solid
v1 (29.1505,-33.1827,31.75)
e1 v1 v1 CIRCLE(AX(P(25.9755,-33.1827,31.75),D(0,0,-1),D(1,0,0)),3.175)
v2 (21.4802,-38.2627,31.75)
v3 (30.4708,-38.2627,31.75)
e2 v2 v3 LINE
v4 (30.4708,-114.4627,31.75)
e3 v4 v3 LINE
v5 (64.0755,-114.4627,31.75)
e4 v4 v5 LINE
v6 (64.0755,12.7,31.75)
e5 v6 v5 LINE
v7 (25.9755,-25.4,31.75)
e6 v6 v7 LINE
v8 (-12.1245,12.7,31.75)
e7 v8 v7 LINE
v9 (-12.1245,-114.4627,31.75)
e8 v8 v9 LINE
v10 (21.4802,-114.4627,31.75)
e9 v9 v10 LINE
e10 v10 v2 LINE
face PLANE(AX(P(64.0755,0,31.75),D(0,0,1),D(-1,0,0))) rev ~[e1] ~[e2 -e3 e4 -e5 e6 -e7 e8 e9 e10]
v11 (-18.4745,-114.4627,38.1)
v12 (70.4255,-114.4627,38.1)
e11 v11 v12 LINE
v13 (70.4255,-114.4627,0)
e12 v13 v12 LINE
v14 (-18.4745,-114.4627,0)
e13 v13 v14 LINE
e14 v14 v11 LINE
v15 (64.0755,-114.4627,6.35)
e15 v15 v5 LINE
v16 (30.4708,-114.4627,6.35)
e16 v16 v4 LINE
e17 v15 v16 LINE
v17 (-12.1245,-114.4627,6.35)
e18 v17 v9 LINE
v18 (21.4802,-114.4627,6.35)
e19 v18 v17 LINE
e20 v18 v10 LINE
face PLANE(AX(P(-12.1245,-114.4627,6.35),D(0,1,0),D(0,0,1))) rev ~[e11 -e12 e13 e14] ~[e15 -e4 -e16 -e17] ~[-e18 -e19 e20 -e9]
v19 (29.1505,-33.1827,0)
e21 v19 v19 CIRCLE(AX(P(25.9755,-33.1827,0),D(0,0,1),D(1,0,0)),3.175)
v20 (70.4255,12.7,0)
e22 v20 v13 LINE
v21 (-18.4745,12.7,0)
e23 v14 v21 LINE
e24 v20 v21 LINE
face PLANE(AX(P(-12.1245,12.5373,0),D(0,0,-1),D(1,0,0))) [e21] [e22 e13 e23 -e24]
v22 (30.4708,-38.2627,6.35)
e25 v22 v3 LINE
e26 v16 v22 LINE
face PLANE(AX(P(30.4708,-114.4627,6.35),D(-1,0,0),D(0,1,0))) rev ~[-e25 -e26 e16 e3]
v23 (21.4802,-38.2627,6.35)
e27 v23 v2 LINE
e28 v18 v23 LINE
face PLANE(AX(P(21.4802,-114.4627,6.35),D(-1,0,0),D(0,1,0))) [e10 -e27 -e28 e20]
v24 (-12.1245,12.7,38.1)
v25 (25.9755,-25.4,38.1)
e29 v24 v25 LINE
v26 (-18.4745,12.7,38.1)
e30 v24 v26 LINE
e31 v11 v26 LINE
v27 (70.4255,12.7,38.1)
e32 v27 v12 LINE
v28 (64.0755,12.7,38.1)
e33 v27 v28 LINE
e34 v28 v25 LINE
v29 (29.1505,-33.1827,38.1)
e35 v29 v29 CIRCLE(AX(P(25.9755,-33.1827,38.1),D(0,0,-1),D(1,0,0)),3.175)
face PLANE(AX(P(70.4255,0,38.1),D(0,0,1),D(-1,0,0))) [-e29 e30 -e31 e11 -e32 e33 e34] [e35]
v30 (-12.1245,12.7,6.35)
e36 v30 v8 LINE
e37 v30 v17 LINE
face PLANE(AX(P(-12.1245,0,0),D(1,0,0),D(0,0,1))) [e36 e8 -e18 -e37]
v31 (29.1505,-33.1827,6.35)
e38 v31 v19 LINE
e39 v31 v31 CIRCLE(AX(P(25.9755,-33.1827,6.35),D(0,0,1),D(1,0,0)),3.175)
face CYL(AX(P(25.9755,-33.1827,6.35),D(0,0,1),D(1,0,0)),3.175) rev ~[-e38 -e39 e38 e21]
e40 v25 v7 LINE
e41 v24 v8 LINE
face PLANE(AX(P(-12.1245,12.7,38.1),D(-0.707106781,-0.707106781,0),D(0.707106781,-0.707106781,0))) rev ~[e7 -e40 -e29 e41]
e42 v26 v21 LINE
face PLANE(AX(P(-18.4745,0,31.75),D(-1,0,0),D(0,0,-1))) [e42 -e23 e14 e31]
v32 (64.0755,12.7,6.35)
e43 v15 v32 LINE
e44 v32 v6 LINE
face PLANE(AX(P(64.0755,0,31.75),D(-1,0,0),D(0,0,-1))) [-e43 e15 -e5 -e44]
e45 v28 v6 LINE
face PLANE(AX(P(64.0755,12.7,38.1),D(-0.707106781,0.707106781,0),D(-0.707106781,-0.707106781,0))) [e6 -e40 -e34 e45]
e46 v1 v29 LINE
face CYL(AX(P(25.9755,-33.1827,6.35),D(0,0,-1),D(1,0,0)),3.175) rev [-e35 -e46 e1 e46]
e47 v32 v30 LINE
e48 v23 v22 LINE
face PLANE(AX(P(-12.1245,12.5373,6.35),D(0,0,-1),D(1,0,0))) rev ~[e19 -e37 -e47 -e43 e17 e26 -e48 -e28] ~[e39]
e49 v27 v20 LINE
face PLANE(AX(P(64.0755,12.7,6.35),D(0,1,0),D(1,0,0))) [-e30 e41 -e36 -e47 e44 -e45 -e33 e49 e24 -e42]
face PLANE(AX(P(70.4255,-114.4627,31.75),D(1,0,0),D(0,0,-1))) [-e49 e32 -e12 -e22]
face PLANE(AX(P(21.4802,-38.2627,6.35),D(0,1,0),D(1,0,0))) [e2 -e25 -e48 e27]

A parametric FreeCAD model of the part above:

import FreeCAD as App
import Part
import Sketcher
Q = App.Units.Quantity

doc = App.newDocument("Part")
body = doc.addObject("PartDesign::Body", "Body")

# Sketch on XY plane
sketch1 = body.newObject("Sketcher::SketchObject", "Sketch")
sketch1.AttachmentSupport = (doc.getObject("XY_Plane"), [""])
sketch1.MapMode = "FlatFace"
sketch1.addGeometry([
    Part.LineSegment(App.Vector(64.0755, 12.5373, 0), App.Vector(-12.1245, 12.5373, 0)),
    Part.LineSegment(App.Vector(-12.1245, 12.5373, 0), App.Vector(-12.1245, -114.4627, 0)),
    Part.LineSegment(App.Vector(-12.1245, -114.4627, 0), App.Vector(64.0755, -114.4627, 0)),
    Part.LineSegment(App.Vector(64.0755, -114.4627, 0), App.Vector(64.0755, 12.5373, 0)),
], False)
sketch1.addConstraint([
    Sketcher.Constraint("Coincident", 0, 2, 1, 1),
    Sketcher.Constraint("Coincident", 1, 2, 2, 1),
    Sketcher.Constraint("Coincident", 2, 2, 3, 1),
    Sketcher.Constraint("Coincident", 3, 2, 0, 1),
    Sketcher.Constraint("Horizontal", 0),
    Sketcher.Constraint("Vertical", 1),
    Sketcher.Constraint("Horizontal", 2),
    Sketcher.Constraint("Vertical", 3),
    Sketcher.Constraint("DistanceX", 0, 2, 0, 1, Q("3 in")),
    Sketcher.Constraint("DistanceY", 1, 2, 1, 1, Q("5 in")),
    Sketcher.Constraint("DistanceY", -1, 1, 0, 2, Q("0.4936 in")),
    Sketcher.Constraint("DistanceX", 0, 2, -1, 1, Q("12.1245 mm")),
])
pad1 = body.newObject("PartDesign::Pad", "Pad")
pad1.Profile = sketch1
pad1.Length = Q("0.25 in")

# Sketch on XY plane
sketch2 = body.newObject("Sketcher::SketchObject", "Sketch001")
sketch2.AttachmentSupport = (doc.getObject("XY_Plane"), [""])
sketch2.MapMode = "FlatFace"
sketch2.AttachmentOffset = App.Placement(App.Vector(0, 0, 0.25 * 25.4), App.Rotation())
sketch2.addGeometry([
    Part.LineSegment(App.Vector(21.4802, -38.2627, 0), App.Vector(21.4802, -114.4627, 0)),
    Part.LineSegment(App.Vector(21.4802, -114.4627, 0), App.Vector(30.4708, -114.4627, 0)),
    Part.LineSegment(App.Vector(30.4708, -114.4627, 0), App.Vector(30.4708, -38.2627, 0)),
    Part.LineSegment(App.Vector(30.4708, -38.2627, 0), App.Vector(21.4802, -38.2627, 0)),
], False)
sketch2.addConstraint([
    Sketcher.Constraint("Coincident", 0, 2, 1, 1),
    Sketcher.Constraint("Coincident", 1, 2, 2, 1),
    Sketcher.Constraint("Coincident", 2, 2, 3, 1),
    Sketcher.Constraint("Coincident", 3, 2, 0, 1),
    Sketcher.Constraint("Vertical", 0),
    Sketcher.Constraint("Horizontal", 1),
    Sketcher.Constraint("Vertical", 2),
    Sketcher.Constraint("Horizontal", 3),
    Sketcher.Constraint("DistanceY", 0, 2, 0, 1, Q("3 in")),
    Sketcher.Constraint("DistanceX", 1, 1, 1, 2, Q("8.9906 mm")),
    Sketcher.Constraint("DistanceY", 0, 2, -1, 1, Q("4.5064 in")),
    Sketcher.Constraint("DistanceX", -1, 1, 0, 2, Q("21.4802 mm")),
])
pad2 = body.newObject("PartDesign::Pad", "Pad001")
pad2.Profile = sketch2
pad2.Length = Q("1 in")

# Sketch on XY plane
sketch3 = body.newObject("Sketcher::SketchObject", "Sketch002")
sketch3.AttachmentSupport = (doc.getObject("XY_Plane"), [""])
sketch3.MapMode = "FlatFace"
sketch3.AttachmentOffset = App.Placement(App.Vector(0, 0, 1.25 * 25.4), App.Rotation())
sketch3.addGeometry([
    Part.LineSegment(App.Vector(-12.1245, -114.4627, 0), App.Vector(64.0755, -114.4627, 0)),
    Part.LineSegment(App.Vector(64.0755, -114.4627, 0), App.Vector(64.0755, 0, 0)),
    Part.LineSegment(App.Vector(64.0755, 0, 0), App.Vector(-12.1245, 0, 0)),
    Part.LineSegment(App.Vector(-12.1245, 0, 0), App.Vector(-12.1245, -114.4627, 0)),
], False)
sketch3.addConstraint([
    Sketcher.Constraint("Coincident", 0, 2, 1, 1),
    Sketcher.Constraint("Coincident", 1, 2, 2, 1),
    Sketcher.Constraint("Coincident", 2, 2, 3, 1),
    Sketcher.Constraint("Coincident", 3, 2, 0, 1),
    Sketcher.Constraint("Horizontal", 0),
    Sketcher.Constraint("Vertical", 1),
    Sketcher.Constraint("Horizontal", 2),
    Sketcher.Constraint("Vertical", 3),
    Sketcher.Constraint("PointOnObject", 1, 2, -1),
    Sketcher.Constraint("DistanceX", 0, 1, 0, 2, Q("3 in")),
    Sketcher.Constraint("DistanceY", 1, 1, 1, 2, Q("4.5064 in")),
    Sketcher.Constraint("DistanceX", -1, 1, 0, 2, Q("64.0755 mm")),
])
pad3 = body.newObject("PartDesign::Pad", "Pad002")
pad3.Profile = sketch3
pad3.Length = Q("0.25 in")

# Sketch on XY plane
sketch4 = body.newObject("Sketcher::SketchObject", "Sketch003")
sketch4.AttachmentSupport = (doc.getObject("XY_Plane"), [""])
sketch4.MapMode = "FlatFace"
sketch4.AttachmentOffset = App.Placement(App.Vector(0, 0, 0.25 * 25.4), App.Rotation())
sketch4.addGeometry(Part.Circle(App.Vector(25.9755, -33.1827, 0), App.Vector(0, 0, 1), 3.175), False)
sketch4.addConstraint([
    Sketcher.Constraint("Diameter", 0, Q("0.25 in")),
    Sketcher.Constraint("DistanceY", 0, 3, -1, 1, Q("1.3064 in")),
    Sketcher.Constraint("DistanceX", -1, 1, 0, 3, Q("25.9755 mm")),
])
pocket1 = body.newObject("PartDesign::Pocket", "Pocket")
pocket1.Profile = sketch4
pocket1.Length = Q("3 in")
pocket1.Midplane = True

# Sketch on YZ plane
sketch5 = body.newObject("Sketcher::SketchObject", "Sketch004")
sketch5.AttachmentSupport = (doc.getObject("YZ_Plane"), [""])
sketch5.MapMode = "FlatFace"
sketch5.AttachmentOffset = App.Placement(App.Vector(0, 0, 64.0755), App.Rotation())
sketch5.addGeometry([
    Part.LineSegment(App.Vector(-114.4627, 0, 0), App.Vector(0, 0, 0)),
    Part.LineSegment(App.Vector(0, 0, 0), App.Vector(0, 38.1, 0)),
    Part.LineSegment(App.Vector(0, 38.1, 0), App.Vector(-114.4627, 38.1, 0)),
    Part.LineSegment(App.Vector(-114.4627, 38.1, 0), App.Vector(-114.4627, 0, 0)),
], False)
sketch5.addConstraint([
    Sketcher.Constraint("Coincident", 0, 2, 1, 1),
    Sketcher.Constraint("Coincident", 1, 2, 2, 1),
    Sketcher.Constraint("Coincident", 2, 2, 3, 1),
    Sketcher.Constraint("Coincident", 3, 2, 0, 1),
    Sketcher.Constraint("Horizontal", 0),
    Sketcher.Constraint("Vertical", 1),
    Sketcher.Constraint("Horizontal", 2),
    Sketcher.Constraint("Vertical", 3),
    Sketcher.Constraint("Coincident", 0, 2, -1, 1),
    Sketcher.Constraint("DistanceY", 1, 1, 1, 2, Q("1.5 in")),
    Sketcher.Constraint("DistanceX", 0, 1, 0, 2, Q("4.5064 in")),
])
pad4 = body.newObject("PartDesign::Pad", "Pad003")
pad4.Profile = sketch5
pad4.Length = Q("0.25 in")

# Sketch on YZ plane
sketch6 = body.newObject("Sketcher::SketchObject", "Sketch005")
sketch6.AttachmentSupport = (doc.getObject("YZ_Plane"), [""])
sketch6.MapMode = "FlatFace"
sketch6.AttachmentOffset = App.Placement(App.Vector(0, 0, -12.1245), App.Rotation())
sketch6.addGeometry([
    Part.LineSegment(App.Vector(0, 38.1, 0), App.Vector(0, 0, 0)),
    Part.LineSegment(App.Vector(0, 0, 0), App.Vector(-114.4627, 0, 0)),
    Part.LineSegment(App.Vector(-114.4627, 0, 0), App.Vector(-114.4627, 38.1, 0)),
    Part.LineSegment(App.Vector(-114.4627, 38.1, 0), App.Vector(0, 38.1, 0)),
], False)
sketch6.addConstraint([
    Sketcher.Constraint("Coincident", 0, 2, 1, 1),
    Sketcher.Constraint("Coincident", 1, 2, 2, 1),
    Sketcher.Constraint("Coincident", 2, 2, 3, 1),
    Sketcher.Constraint("Coincident", 3, 2, 0, 1),
    Sketcher.Constraint("Vertical", 0),
    Sketcher.Constraint("Horizontal", 1),
    Sketcher.Constraint("Vertical", 2),
    Sketcher.Constraint("Horizontal", 3),
    Sketcher.Constraint("Coincident", 0, 2, -1, 1),
    Sketcher.Constraint("DistanceY", 0, 2, 0, 1, Q("1.5 in")),
    Sketcher.Constraint("DistanceX", 1, 2, 1, 1, Q("4.5064 in")),
])
pad5 = body.newObject("PartDesign::Pad", "Pad004")
pad5.Profile = sketch6
pad5.Length = Q("0.25 in")
pad5.Reversed = True

# Sketch on XZ plane
sketch7 = body.newObject("Sketcher::SketchObject", "Sketch006")
sketch7.AttachmentSupport = (doc.getObject("XZ_Plane"), [""])
sketch7.MapMode = "FlatFace"
sketch7.addGeometry([
    Part.LineSegment(App.Vector(-12.1245, 0, 0), App.Vector(-18.4745, 0, 0)),  # 0
    Part.LineSegment(App.Vector(-18.4745, 0, 0), App.Vector(-18.4745, 38.1, 0)),  # 1
    Part.LineSegment(App.Vector(-18.4745, 38.1, 0), App.Vector(70.4255, 38.1, 0)),  # 2
    Part.LineSegment(App.Vector(70.4255, 38.1, 0), App.Vector(70.4255, 0, 0)),  # 3
    Part.LineSegment(App.Vector(70.4255, 0, 0), App.Vector(64.0755, 0, 0)),  # 4
    Part.LineSegment(App.Vector(64.0755, 0, 0), App.Vector(64.0755, 31.75, 0)),  # 5
    Part.LineSegment(App.Vector(64.0755, 31.75, 0), App.Vector(-12.1245, 31.75, 0)),  # 6
    Part.LineSegment(App.Vector(-12.1245, 31.75, 0), App.Vector(-12.1245, 0, 0)),  # 7
], False)
sketch7.addConstraint([
    Sketcher.Constraint("Coincident", 0, 2, 1, 1),
    Sketcher.Constraint("Coincident", 1, 2, 2, 1),
    Sketcher.Constraint("Coincident", 2, 2, 3, 1),
    Sketcher.Constraint("Coincident", 3, 2, 4, 1),
    Sketcher.Constraint("Coincident", 4, 2, 5, 1),
    Sketcher.Constraint("Coincident", 5, 2, 6, 1),
    Sketcher.Constraint("Coincident", 6, 2, 7, 1),
    Sketcher.Constraint("Coincident", 7, 2, 0, 1),
    Sketcher.Constraint("Horizontal", 0),
    Sketcher.Constraint("Vertical", 1),
    Sketcher.Constraint("Horizontal", 2),
    Sketcher.Constraint("Vertical", 3),
    Sketcher.Constraint("Horizontal", 4),
    Sketcher.Constraint("Vertical", 5),
    Sketcher.Constraint("Horizontal", 6),
    Sketcher.Constraint("Vertical", 7),
    Sketcher.Constraint("PointOnObject", 0, 2, -1),
    Sketcher.Constraint("PointOnObject", 3, 2, -1),
    Sketcher.Constraint("Equal", 0, 4),
    Sketcher.Constraint("DistanceX", 6, 2, 6, 1, Q("3 in")),
    Sketcher.Constraint("DistanceX", 2, 1, 2, 2, Q("3.5 in")),
    Sketcher.Constraint("DistanceY", 1, 1, 1, 2, Q("1.5 in")),
    Sketcher.Constraint("DistanceY", 5, 1, 5, 2, Q("1.25 in")),
    Sketcher.Constraint("DistanceX", 0, 2, -1, 1, Q("18.4745 mm")),
])
pad6 = body.newObject("PartDesign::Pad", "Pad005")
pad6.Profile = sketch7
pad6.Length = Q("0.5 in")
pad6.Reversed = True

# Sketch on XZ plane
sketch8 = body.newObject("Sketcher::SketchObject", "Sketch007")
sketch8.AttachmentSupport = (doc.getObject("XZ_Plane"), [""])
sketch8.MapMode = "FlatFace"
sketch8.AttachmentOffset = App.Placement(App.Vector(0, 0, -0.4935945 * 25.4), App.Rotation())
sketch8.addGeometry([
    Part.LineSegment(App.Vector(-12.1245, 0, 0), App.Vector(-12.1245, 6.35, 0)),
    Part.LineSegment(App.Vector(-12.1245, 6.35, 0), App.Vector(64.0809, 6.35, 0)),
    Part.LineSegment(App.Vector(64.0809, 6.35, 0), App.Vector(64.0809, 0, 0)),
    Part.LineSegment(App.Vector(64.0809, 0, 0), App.Vector(-12.1245, 0, 0)),
], False)
sketch8.addConstraint([
    Sketcher.Constraint("Coincident", 0, 2, 1, 1),
    Sketcher.Constraint("Coincident", 1, 2, 2, 1),
    Sketcher.Constraint("Coincident", 2, 2, 3, 1),
    Sketcher.Constraint("Coincident", 3, 2, 0, 1),
    Sketcher.Constraint("Vertical", 0),
    Sketcher.Constraint("Horizontal", 1),
    Sketcher.Constraint("Vertical", 2),
    Sketcher.Constraint("Horizontal", 3),
    Sketcher.Constraint("PointOnObject", 2, 2, -1),
    Sketcher.Constraint("DistanceY", 0, 1, 0, 2, Q("0.25 in")),
    Sketcher.Constraint("DistanceX", 1, 1, 1, 2, Q("76.2054 mm")),
    Sketcher.Constraint("DistanceX", 0, 2, -1, 1, Q("12.1245 mm")),
])
pad7 = body.newObject("PartDesign::Pad", "Pad006")
pad7.Profile = sketch8
pad7.Length = Q("0.0064055 in")
pad7.Reversed = True

# Sketch on XY plane
sketch9 = body.newObject("Sketcher::SketchObject", "Sketch008")
sketch9.AttachmentSupport = (doc.getObject("XY_Plane"), [""])
sketch9.MapMode = "FlatFace"
sketch9.AttachmentOffset = App.Placement(App.Vector(0, 0, 1.5 * 25.4), App.Rotation())
sketch9.addGeometry([
    Part.LineSegment(App.Vector(64.0755, 12.7, 0), App.Vector(-12.1245, 12.7, 0)),
    Part.LineSegment(App.Vector(-12.1245, 12.7, 0), App.Vector(25.9755, -25.4, 0)),
    Part.LineSegment(App.Vector(25.9755, -25.4, 0), App.Vector(64.0755, 12.7, 0)),
], False)
sketch9.addConstraint([
    Sketcher.Constraint("Coincident", 0, 2, 1, 1),
    Sketcher.Constraint("Coincident", 1, 2, 2, 1),
    Sketcher.Constraint("Coincident", 2, 2, 0, 1),
    Sketcher.Constraint("Horizontal", 0),
    Sketcher.Constraint("Perpendicular", 1, 2),
    Sketcher.Constraint("Equal", 1, 2),
    Sketcher.Constraint("DistanceX", 0, 2, 0, 1, Q("3 in")),
    Sketcher.Constraint("DistanceY", 1, 2, -1, 1, Q("1 in")),
    Sketcher.Constraint("DistanceX", 0, 2, -1, 1, Q("12.1245 mm")),
])
pocket2 = body.newObject("PartDesign::Pocket", "Pocket001")
pocket2.Profile = sketch9
pocket2.Length = Q("1 in")

doc.recompute()
